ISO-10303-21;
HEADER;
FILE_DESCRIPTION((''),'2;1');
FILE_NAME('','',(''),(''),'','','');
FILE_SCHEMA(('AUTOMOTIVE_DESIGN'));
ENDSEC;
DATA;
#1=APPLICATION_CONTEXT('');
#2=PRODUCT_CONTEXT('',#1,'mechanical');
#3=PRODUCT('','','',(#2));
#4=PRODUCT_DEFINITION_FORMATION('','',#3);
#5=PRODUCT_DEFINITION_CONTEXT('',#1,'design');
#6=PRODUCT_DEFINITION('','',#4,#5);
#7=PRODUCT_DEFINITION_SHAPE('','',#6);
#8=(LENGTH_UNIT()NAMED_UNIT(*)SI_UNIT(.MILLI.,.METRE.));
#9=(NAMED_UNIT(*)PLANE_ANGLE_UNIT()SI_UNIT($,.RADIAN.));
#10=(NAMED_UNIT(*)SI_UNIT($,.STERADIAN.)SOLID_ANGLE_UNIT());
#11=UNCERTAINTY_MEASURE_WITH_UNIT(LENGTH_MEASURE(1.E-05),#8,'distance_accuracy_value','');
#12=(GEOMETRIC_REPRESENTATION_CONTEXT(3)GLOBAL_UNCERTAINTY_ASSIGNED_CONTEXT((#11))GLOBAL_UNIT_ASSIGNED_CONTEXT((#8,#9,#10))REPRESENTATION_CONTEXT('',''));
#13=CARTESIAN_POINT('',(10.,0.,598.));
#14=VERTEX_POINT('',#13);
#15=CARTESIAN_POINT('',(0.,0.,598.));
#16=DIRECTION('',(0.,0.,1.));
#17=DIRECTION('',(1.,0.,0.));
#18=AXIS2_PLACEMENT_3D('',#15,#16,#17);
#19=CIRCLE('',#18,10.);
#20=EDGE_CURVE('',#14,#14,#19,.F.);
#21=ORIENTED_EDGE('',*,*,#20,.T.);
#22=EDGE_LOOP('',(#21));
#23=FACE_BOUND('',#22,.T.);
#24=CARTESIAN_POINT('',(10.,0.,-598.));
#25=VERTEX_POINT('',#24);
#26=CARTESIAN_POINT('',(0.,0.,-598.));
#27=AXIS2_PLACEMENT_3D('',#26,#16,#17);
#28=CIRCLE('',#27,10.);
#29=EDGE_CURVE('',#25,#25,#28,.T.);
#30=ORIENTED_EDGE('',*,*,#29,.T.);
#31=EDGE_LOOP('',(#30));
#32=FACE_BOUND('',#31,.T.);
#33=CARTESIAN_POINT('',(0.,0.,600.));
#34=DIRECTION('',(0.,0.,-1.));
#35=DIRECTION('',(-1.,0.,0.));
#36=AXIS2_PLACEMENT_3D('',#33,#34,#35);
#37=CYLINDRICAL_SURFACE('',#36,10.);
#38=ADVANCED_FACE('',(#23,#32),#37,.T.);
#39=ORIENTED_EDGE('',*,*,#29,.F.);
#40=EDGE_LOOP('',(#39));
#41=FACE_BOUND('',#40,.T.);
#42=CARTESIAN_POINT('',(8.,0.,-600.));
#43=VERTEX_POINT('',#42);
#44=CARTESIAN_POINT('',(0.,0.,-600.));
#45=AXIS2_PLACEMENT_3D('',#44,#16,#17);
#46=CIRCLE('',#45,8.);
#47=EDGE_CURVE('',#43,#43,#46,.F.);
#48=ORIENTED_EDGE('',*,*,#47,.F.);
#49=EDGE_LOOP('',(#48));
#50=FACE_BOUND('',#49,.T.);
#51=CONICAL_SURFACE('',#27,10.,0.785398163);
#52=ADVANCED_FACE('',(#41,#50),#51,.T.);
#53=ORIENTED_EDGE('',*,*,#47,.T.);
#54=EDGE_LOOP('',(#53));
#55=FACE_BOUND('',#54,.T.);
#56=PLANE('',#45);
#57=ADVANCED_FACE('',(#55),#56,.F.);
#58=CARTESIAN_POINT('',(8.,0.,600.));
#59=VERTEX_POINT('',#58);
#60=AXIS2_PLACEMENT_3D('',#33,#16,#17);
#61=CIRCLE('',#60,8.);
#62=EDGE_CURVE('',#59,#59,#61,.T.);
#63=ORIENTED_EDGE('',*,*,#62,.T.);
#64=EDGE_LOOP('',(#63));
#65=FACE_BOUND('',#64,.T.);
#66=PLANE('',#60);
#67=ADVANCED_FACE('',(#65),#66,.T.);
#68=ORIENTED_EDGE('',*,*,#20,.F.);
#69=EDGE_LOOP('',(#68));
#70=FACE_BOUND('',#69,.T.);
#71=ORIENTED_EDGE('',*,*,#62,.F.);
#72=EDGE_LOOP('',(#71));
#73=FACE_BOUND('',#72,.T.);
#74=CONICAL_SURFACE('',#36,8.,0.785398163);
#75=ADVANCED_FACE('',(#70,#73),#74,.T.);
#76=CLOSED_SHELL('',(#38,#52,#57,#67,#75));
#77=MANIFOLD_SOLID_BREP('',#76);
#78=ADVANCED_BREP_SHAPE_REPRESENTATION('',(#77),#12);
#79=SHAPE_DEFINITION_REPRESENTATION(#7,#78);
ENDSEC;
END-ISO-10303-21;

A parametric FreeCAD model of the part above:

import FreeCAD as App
import Part
import Sketcher

V = App.Vector
Q = App.Units.Quantity


def edges_at(feature, points):
    """Names of the edges that pass closest to the given points."""
    edges = feature.Shape.Edges
    near = lambda p: min(range(len(edges)), key=lambda i: edges[i].distToShape(Part.Vertex(*p))[0])
    return sorted({f"Edge{near(p) + 1}" for p in points})

doc = App.newDocument("Part")
body = doc.addObject("PartDesign::Body", "Body")

# Sketch on XY plane
sketch1 = body.newObject("Sketcher::SketchObject", "Sketch")
sketch1.AttachmentSupport = (doc.getObject("XY_Plane"), [""])
sketch1.MapMode = "FlatFace"
sketch1.addGeometry(Part.Circle(V(0, 0, 0), V(0, 0, 1), 10), False)
sketch1.addConstraint(Sketcher.Constraint("Coincident", 0, 3, -1, 1))
sketch1.addConstraint(Sketcher.Constraint("Diameter", 0, Q("20 mm")))
pad1 = body.newObject("PartDesign::Pad", "Pad")
pad1.Profile = sketch1
pad1.Length = 1200
pad1.Midplane = True
doc.recompute()

chamfer = body.newObject("PartDesign::Chamfer", "Chamfer")
chamfer.Base = (pad1, edges_at(pad1, [(-10, 0, -600), (-10, 0, 600)]))
chamfer.Size = 2

doc.recompute()
